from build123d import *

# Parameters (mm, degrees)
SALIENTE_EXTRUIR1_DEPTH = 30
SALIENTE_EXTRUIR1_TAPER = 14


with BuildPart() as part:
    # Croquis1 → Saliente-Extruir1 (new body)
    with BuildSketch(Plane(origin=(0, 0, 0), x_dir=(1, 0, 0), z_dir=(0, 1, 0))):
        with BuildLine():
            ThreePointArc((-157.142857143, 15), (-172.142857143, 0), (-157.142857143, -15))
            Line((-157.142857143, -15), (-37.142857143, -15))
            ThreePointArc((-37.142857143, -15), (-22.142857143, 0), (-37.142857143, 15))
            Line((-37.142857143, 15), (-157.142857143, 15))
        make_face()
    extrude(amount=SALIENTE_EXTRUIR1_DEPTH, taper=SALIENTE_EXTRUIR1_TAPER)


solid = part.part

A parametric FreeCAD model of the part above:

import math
import FreeCAD as App
import Part
import Sketcher

V = App.Vector
Q = App.Units.Quantity

doc = App.newDocument("Part")
body = doc.addObject("PartDesign::Body", "Body")

# Sketch on XZ plane
sketch1 = body.newObject("Sketcher::SketchObject", "Sketch")
sketch1.AttachmentSupport = (doc.getObject("XZ_Plane"), [""])
sketch1.MapMode = "FlatFace"
sketch1.addGeometry([
    Part.ArcOfCircle(Part.Circle(V(-157.142857, 0, 0), V(0, 0, 1), 15), math.radians(90), math.radians(270)),
    Part.LineSegment(V(-157.142857, 15, 0), V(-37.142857, 15, 0)),
    Part.ArcOfCircle(Part.Circle(V(-37.142857, 0, 0), V(0, 0, 1), 15), math.radians(-90), math.radians(90)),
    Part.LineSegment(V(-37.142857, -15, 0), V(-157.142857, -15, 0)),
], False)
sketch1.addConstraint([
    Sketcher.Constraint("Tangent", 0, 1, 1, 1),
    Sketcher.Constraint("Tangent", 1, 2, 2, 2),
    Sketcher.Constraint("Tangent", 2, 1, 3, 1),
    Sketcher.Constraint("Tangent", 3, 2, 0, 2),
    Sketcher.Constraint("Horizontal", 1),
    Sketcher.Constraint("Horizontal", 3),
    Sketcher.Constraint("PointOnObject", 0, 3, -1),
    Sketcher.Constraint("Radius", 0, Q("15 mm")),
    Sketcher.Constraint("DistanceX", 1, 1, 1, 2, Q("120 mm")),
    Sketcher.Constraint("DistanceX", 0, 3, -1, 1, Q("157.142857 mm")),
])
pad1 = body.newObject("PartDesign::Pad", "Pad")
pad1.Profile = sketch1
pad1.Length = 30
pad1.Reversed = True
pad1.TaperAngle = -14

doc.recompute()
